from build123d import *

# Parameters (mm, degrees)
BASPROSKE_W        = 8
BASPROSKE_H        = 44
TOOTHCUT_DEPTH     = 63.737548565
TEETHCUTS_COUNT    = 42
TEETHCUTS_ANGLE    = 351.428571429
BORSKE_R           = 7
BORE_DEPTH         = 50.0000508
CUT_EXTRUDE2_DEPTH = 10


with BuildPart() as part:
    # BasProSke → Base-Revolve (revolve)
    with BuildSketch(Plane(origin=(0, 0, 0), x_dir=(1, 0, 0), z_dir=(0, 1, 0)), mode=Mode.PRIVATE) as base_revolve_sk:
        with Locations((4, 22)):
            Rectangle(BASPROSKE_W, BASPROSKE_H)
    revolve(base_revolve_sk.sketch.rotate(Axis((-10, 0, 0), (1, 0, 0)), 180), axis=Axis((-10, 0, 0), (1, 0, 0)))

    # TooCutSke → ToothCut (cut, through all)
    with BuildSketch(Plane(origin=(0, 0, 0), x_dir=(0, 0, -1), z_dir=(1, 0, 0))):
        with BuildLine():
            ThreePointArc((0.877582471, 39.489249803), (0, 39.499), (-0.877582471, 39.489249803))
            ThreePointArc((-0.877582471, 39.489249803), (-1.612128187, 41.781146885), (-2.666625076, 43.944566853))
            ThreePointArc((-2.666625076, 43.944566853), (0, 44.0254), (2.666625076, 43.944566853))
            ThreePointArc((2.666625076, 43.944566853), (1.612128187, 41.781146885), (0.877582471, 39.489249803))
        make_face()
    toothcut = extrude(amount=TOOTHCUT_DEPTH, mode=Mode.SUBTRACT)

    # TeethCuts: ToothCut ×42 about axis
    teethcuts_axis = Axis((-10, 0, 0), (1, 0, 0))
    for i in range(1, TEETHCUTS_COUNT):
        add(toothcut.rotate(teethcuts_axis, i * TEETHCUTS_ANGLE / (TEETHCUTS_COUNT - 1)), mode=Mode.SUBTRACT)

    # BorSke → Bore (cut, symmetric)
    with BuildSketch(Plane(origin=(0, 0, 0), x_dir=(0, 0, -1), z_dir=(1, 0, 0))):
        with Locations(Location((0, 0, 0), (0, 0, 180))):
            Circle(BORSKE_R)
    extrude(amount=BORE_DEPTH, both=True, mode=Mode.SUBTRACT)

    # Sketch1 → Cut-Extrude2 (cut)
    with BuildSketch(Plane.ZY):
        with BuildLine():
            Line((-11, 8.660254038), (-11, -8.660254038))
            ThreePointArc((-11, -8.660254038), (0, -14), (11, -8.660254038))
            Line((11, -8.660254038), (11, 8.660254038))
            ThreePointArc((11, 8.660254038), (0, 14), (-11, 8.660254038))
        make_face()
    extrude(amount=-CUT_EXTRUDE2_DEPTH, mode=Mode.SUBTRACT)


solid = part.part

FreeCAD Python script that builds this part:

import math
import FreeCAD as App
import Part
import Sketcher

V = App.Vector

doc = App.newDocument("Part")
params = doc.addObject("Spreadsheet::Sheet", "Params")
for row, (alias, value) in enumerate([
    ("sketch1_width", "8 mm"),
    ("sketch1_height", "44 mm"),
    ("revolution_angle", "360 deg"),
    ("sketch2_radius", "16.8 mm"),
    ("sketch2_radius2", "16.8 mm"),
    ("sketch3_diameter", "14 mm"),
    ("pocket2_length", "100.000102 mm"),
    ("sketch4_radius", "14 mm"),
    ("pocket3_length", "10 mm"),
], start=1):
    params.set(f"A{row}", alias)
    params.set(f"B{row}", "=" + value)
    params.setAlias(f"B{row}", alias)

body = doc.addObject("PartDesign::Body", "Body")

sketch1 = body.newObject("Sketcher::SketchObject", "Sketch")
sketch1.AttachmentSupport = (doc.getObject("XZ_Plane"), [""])
sketch1.MapMode = "FlatFace"
sketch1.addGeometry([
    Part.LineSegment(V(0, -44, 0), V(0, 0, 0)),
    Part.LineSegment(V(0, 0, 0), V(8, 0, 0)),
    Part.LineSegment(V(8, 0, 0), V(8, -44, 0)),
    Part.LineSegment(V(8, -44, 0), V(0, -44, 0)),
], False)
sketch1.addConstraint([
    Sketcher.Constraint("Coincident", 0, 2, 1, 1),
    Sketcher.Constraint("Coincident", 1, 2, 2, 1),
    Sketcher.Constraint("Coincident", 2, 2, 3, 1),
    Sketcher.Constraint("Coincident", 3, 2, 0, 1),
    Sketcher.Constraint("Vertical", 0),
    Sketcher.Constraint("Horizontal", 1),
    Sketcher.Constraint("Vertical", 2),
    Sketcher.Constraint("Horizontal", 3),
    Sketcher.Constraint("Coincident", 0, 2, -1, 1),
    Sketcher.Constraint("DistanceX", 1, 1, 1, 2, 8.0),
    Sketcher.Constraint("DistanceY", 0, 1, 0, 2, 44.0),
])
sketch1.setExpression("Constraints[9]", "Params.sketch1_width")
sketch1.setExpression("Constraints[10]", "Params.sketch1_height")
revolution = body.newObject("PartDesign::Revolution", "Revolution")
revolution.Profile = sketch1
revolution.ReferenceAxis = (sketch1, ["H_Axis"])
revolution.setExpression("Angle", "Params.revolution_angle")

sketch2 = body.newObject("Sketcher::SketchObject", "Sketch001")
sketch2.AttachmentSupport = (doc.getObject("YZ_Plane"), [""])
sketch2.MapMode = "FlatFace"
sketch2.addGeometry([
    Part.ArcOfCircle(Part.Circle(V(0, 0, 0), V(0, 0, 1), 39.499), math.radians(-1.273093), math.radians(1.273093)),
    Part.ArcOfCircle(Part.Circle(V(35.520927, -17.202178, 0), V(0, 0, 1), 16.8), math.radians(59.906862), math.radians(76.33706)),
    Part.ArcOfCircle(Part.Circle(V(0, 0, 0), V(0, 0, 1), 44.0254), math.radians(-3.472539), math.radians(3.472539)),
    Part.ArcOfCircle(Part.Circle(V(35.520927, 17.202178, 0), V(0, 0, 1), 16.8), math.radians(-76.33706), math.radians(-59.906862)),
], False)
sketch2.addConstraint([
    Sketcher.Constraint("Coincident", 0, 1, 1, 2),
    Sketcher.Constraint("Coincident", 1, 1, 2, 1),
    Sketcher.Constraint("Coincident", 2, 2, 3, 2),
    Sketcher.Constraint("Coincident", 3, 1, 0, 2),
    Sketcher.Constraint("Coincident", 0, 3, -1, 1),
    Sketcher.Constraint("Coincident", 2, 3, -1, 1),
    Sketcher.Constraint("Radius", 1, 16.8),
    Sketcher.Constraint("Radius", 3, 16.8),
    Sketcher.Constraint("Radius", 0, 39.499),
    Sketcher.Constraint("Radius", 2, 44.0254),
    Sketcher.Constraint("DistanceX", -1, 1, 0, 1, 39.48925),
    Sketcher.Constraint("DistanceY", 0, 1, 3, 3, 18.07976),
    Sketcher.Constraint("DistanceX", 1, 3, 1, 1, 8.42364),
    Sketcher.Constraint("DistanceX", 3, 3, 1, 1, 8.42364),
])
sketch2.setExpression("Constraints[6]", "Params.sketch2_radius")
sketch2.setExpression("Constraints[7]", "Params.sketch2_radius2")
pocket1 = body.newObject("PartDesign::Pocket", "Pocket")
pocket1.Profile = sketch2
pocket1.Type = "ThroughAll"
pocket1.Reversed = True
doc.recompute()

polarpattern = body.newObject("PartDesign::PolarPattern", "PolarPattern")
polarpattern.Originals = [pocket1]
polarpattern.Axis = (doc.getObject("X_Axis"), [""])
polarpattern.Angle = 360
polarpattern.Occurrences = 42
body.Tip = polarpattern

sketch3 = body.newObject("Sketcher::SketchObject", "Sketch002")
sketch3.AttachmentSupport = (doc.getObject("YZ_Plane"), [""])
sketch3.MapMode = "FlatFace"
sketch3.addGeometry(Part.Circle(V(0, 0, 0), V(0, 0, 1), 7), False)
sketch3.addConstraint([
    Sketcher.Constraint("Coincident", 0, 3, -1, 1),
    Sketcher.Constraint("Diameter", 0, 14.0),
])
sketch3.setExpression("Constraints[1]", "Params.sketch3_diameter")
pocket2 = body.newObject("PartDesign::Pocket", "Pocket001")
pocket2.Profile = sketch3
pocket2.setExpression("Length", "Params.pocket2_length")
pocket2.Midplane = True

sketch4 = body.newObject("Sketcher::SketchObject", "Sketch003")
sketch4.AttachmentSupport = (doc.getObject("YZ_Plane"), [""])
sketch4.MapMode = "FlatFace"
sketch4.addGeometry([
    Part.LineSegment(V(8.660254, -11, 0), V(-8.660254, -11, 0)),
    Part.ArcOfCircle(Part.Circle(V(0, 0, 0), V(0, 0, 1), 14), math.radians(128.213211), math.radians(231.786789)),
    Part.LineSegment(V(-8.660254, 11, 0), V(8.660254, 11, 0)),
    Part.ArcOfCircle(Part.Circle(V(0, 0, 0), V(0, 0, 1), 14), math.radians(-51.786789), math.radians(51.786789)),
], False)
sketch4.addConstraint([
    Sketcher.Constraint("Coincident", 0, 2, 1, 2),
    Sketcher.Constraint("Coincident", 1, 1, 2, 1),
    Sketcher.Constraint("Coincident", 2, 2, 3, 2),
    Sketcher.Constraint("Coincident", 3, 1, 0, 1),
    Sketcher.Constraint("Horizontal", 0),
    Sketcher.Constraint("Horizontal", 2),
    Sketcher.Constraint("Coincident", 1, 3, -1, 1),
    Sketcher.Constraint("Coincident", 3, 3, -1, 1),
    Sketcher.Constraint("Equal", 1, 3),
    Sketcher.Constraint("Vertical", 0, 2, 1, 1),
    Sketcher.Constraint("Radius", 1, 14.0),
    Sketcher.Constraint("DistanceY", 0, 2, -1, 1, 11.0),
])
sketch4.setExpression("Constraints[10]", "Params.sketch4_radius")
pocket3 = body.newObject("PartDesign::Pocket", "Pocket002")
pocket3.Profile = sketch4
pocket3.setExpression("Length", "Params.pocket3_length")
pocket3.Reversed = True

doc.recompute()
